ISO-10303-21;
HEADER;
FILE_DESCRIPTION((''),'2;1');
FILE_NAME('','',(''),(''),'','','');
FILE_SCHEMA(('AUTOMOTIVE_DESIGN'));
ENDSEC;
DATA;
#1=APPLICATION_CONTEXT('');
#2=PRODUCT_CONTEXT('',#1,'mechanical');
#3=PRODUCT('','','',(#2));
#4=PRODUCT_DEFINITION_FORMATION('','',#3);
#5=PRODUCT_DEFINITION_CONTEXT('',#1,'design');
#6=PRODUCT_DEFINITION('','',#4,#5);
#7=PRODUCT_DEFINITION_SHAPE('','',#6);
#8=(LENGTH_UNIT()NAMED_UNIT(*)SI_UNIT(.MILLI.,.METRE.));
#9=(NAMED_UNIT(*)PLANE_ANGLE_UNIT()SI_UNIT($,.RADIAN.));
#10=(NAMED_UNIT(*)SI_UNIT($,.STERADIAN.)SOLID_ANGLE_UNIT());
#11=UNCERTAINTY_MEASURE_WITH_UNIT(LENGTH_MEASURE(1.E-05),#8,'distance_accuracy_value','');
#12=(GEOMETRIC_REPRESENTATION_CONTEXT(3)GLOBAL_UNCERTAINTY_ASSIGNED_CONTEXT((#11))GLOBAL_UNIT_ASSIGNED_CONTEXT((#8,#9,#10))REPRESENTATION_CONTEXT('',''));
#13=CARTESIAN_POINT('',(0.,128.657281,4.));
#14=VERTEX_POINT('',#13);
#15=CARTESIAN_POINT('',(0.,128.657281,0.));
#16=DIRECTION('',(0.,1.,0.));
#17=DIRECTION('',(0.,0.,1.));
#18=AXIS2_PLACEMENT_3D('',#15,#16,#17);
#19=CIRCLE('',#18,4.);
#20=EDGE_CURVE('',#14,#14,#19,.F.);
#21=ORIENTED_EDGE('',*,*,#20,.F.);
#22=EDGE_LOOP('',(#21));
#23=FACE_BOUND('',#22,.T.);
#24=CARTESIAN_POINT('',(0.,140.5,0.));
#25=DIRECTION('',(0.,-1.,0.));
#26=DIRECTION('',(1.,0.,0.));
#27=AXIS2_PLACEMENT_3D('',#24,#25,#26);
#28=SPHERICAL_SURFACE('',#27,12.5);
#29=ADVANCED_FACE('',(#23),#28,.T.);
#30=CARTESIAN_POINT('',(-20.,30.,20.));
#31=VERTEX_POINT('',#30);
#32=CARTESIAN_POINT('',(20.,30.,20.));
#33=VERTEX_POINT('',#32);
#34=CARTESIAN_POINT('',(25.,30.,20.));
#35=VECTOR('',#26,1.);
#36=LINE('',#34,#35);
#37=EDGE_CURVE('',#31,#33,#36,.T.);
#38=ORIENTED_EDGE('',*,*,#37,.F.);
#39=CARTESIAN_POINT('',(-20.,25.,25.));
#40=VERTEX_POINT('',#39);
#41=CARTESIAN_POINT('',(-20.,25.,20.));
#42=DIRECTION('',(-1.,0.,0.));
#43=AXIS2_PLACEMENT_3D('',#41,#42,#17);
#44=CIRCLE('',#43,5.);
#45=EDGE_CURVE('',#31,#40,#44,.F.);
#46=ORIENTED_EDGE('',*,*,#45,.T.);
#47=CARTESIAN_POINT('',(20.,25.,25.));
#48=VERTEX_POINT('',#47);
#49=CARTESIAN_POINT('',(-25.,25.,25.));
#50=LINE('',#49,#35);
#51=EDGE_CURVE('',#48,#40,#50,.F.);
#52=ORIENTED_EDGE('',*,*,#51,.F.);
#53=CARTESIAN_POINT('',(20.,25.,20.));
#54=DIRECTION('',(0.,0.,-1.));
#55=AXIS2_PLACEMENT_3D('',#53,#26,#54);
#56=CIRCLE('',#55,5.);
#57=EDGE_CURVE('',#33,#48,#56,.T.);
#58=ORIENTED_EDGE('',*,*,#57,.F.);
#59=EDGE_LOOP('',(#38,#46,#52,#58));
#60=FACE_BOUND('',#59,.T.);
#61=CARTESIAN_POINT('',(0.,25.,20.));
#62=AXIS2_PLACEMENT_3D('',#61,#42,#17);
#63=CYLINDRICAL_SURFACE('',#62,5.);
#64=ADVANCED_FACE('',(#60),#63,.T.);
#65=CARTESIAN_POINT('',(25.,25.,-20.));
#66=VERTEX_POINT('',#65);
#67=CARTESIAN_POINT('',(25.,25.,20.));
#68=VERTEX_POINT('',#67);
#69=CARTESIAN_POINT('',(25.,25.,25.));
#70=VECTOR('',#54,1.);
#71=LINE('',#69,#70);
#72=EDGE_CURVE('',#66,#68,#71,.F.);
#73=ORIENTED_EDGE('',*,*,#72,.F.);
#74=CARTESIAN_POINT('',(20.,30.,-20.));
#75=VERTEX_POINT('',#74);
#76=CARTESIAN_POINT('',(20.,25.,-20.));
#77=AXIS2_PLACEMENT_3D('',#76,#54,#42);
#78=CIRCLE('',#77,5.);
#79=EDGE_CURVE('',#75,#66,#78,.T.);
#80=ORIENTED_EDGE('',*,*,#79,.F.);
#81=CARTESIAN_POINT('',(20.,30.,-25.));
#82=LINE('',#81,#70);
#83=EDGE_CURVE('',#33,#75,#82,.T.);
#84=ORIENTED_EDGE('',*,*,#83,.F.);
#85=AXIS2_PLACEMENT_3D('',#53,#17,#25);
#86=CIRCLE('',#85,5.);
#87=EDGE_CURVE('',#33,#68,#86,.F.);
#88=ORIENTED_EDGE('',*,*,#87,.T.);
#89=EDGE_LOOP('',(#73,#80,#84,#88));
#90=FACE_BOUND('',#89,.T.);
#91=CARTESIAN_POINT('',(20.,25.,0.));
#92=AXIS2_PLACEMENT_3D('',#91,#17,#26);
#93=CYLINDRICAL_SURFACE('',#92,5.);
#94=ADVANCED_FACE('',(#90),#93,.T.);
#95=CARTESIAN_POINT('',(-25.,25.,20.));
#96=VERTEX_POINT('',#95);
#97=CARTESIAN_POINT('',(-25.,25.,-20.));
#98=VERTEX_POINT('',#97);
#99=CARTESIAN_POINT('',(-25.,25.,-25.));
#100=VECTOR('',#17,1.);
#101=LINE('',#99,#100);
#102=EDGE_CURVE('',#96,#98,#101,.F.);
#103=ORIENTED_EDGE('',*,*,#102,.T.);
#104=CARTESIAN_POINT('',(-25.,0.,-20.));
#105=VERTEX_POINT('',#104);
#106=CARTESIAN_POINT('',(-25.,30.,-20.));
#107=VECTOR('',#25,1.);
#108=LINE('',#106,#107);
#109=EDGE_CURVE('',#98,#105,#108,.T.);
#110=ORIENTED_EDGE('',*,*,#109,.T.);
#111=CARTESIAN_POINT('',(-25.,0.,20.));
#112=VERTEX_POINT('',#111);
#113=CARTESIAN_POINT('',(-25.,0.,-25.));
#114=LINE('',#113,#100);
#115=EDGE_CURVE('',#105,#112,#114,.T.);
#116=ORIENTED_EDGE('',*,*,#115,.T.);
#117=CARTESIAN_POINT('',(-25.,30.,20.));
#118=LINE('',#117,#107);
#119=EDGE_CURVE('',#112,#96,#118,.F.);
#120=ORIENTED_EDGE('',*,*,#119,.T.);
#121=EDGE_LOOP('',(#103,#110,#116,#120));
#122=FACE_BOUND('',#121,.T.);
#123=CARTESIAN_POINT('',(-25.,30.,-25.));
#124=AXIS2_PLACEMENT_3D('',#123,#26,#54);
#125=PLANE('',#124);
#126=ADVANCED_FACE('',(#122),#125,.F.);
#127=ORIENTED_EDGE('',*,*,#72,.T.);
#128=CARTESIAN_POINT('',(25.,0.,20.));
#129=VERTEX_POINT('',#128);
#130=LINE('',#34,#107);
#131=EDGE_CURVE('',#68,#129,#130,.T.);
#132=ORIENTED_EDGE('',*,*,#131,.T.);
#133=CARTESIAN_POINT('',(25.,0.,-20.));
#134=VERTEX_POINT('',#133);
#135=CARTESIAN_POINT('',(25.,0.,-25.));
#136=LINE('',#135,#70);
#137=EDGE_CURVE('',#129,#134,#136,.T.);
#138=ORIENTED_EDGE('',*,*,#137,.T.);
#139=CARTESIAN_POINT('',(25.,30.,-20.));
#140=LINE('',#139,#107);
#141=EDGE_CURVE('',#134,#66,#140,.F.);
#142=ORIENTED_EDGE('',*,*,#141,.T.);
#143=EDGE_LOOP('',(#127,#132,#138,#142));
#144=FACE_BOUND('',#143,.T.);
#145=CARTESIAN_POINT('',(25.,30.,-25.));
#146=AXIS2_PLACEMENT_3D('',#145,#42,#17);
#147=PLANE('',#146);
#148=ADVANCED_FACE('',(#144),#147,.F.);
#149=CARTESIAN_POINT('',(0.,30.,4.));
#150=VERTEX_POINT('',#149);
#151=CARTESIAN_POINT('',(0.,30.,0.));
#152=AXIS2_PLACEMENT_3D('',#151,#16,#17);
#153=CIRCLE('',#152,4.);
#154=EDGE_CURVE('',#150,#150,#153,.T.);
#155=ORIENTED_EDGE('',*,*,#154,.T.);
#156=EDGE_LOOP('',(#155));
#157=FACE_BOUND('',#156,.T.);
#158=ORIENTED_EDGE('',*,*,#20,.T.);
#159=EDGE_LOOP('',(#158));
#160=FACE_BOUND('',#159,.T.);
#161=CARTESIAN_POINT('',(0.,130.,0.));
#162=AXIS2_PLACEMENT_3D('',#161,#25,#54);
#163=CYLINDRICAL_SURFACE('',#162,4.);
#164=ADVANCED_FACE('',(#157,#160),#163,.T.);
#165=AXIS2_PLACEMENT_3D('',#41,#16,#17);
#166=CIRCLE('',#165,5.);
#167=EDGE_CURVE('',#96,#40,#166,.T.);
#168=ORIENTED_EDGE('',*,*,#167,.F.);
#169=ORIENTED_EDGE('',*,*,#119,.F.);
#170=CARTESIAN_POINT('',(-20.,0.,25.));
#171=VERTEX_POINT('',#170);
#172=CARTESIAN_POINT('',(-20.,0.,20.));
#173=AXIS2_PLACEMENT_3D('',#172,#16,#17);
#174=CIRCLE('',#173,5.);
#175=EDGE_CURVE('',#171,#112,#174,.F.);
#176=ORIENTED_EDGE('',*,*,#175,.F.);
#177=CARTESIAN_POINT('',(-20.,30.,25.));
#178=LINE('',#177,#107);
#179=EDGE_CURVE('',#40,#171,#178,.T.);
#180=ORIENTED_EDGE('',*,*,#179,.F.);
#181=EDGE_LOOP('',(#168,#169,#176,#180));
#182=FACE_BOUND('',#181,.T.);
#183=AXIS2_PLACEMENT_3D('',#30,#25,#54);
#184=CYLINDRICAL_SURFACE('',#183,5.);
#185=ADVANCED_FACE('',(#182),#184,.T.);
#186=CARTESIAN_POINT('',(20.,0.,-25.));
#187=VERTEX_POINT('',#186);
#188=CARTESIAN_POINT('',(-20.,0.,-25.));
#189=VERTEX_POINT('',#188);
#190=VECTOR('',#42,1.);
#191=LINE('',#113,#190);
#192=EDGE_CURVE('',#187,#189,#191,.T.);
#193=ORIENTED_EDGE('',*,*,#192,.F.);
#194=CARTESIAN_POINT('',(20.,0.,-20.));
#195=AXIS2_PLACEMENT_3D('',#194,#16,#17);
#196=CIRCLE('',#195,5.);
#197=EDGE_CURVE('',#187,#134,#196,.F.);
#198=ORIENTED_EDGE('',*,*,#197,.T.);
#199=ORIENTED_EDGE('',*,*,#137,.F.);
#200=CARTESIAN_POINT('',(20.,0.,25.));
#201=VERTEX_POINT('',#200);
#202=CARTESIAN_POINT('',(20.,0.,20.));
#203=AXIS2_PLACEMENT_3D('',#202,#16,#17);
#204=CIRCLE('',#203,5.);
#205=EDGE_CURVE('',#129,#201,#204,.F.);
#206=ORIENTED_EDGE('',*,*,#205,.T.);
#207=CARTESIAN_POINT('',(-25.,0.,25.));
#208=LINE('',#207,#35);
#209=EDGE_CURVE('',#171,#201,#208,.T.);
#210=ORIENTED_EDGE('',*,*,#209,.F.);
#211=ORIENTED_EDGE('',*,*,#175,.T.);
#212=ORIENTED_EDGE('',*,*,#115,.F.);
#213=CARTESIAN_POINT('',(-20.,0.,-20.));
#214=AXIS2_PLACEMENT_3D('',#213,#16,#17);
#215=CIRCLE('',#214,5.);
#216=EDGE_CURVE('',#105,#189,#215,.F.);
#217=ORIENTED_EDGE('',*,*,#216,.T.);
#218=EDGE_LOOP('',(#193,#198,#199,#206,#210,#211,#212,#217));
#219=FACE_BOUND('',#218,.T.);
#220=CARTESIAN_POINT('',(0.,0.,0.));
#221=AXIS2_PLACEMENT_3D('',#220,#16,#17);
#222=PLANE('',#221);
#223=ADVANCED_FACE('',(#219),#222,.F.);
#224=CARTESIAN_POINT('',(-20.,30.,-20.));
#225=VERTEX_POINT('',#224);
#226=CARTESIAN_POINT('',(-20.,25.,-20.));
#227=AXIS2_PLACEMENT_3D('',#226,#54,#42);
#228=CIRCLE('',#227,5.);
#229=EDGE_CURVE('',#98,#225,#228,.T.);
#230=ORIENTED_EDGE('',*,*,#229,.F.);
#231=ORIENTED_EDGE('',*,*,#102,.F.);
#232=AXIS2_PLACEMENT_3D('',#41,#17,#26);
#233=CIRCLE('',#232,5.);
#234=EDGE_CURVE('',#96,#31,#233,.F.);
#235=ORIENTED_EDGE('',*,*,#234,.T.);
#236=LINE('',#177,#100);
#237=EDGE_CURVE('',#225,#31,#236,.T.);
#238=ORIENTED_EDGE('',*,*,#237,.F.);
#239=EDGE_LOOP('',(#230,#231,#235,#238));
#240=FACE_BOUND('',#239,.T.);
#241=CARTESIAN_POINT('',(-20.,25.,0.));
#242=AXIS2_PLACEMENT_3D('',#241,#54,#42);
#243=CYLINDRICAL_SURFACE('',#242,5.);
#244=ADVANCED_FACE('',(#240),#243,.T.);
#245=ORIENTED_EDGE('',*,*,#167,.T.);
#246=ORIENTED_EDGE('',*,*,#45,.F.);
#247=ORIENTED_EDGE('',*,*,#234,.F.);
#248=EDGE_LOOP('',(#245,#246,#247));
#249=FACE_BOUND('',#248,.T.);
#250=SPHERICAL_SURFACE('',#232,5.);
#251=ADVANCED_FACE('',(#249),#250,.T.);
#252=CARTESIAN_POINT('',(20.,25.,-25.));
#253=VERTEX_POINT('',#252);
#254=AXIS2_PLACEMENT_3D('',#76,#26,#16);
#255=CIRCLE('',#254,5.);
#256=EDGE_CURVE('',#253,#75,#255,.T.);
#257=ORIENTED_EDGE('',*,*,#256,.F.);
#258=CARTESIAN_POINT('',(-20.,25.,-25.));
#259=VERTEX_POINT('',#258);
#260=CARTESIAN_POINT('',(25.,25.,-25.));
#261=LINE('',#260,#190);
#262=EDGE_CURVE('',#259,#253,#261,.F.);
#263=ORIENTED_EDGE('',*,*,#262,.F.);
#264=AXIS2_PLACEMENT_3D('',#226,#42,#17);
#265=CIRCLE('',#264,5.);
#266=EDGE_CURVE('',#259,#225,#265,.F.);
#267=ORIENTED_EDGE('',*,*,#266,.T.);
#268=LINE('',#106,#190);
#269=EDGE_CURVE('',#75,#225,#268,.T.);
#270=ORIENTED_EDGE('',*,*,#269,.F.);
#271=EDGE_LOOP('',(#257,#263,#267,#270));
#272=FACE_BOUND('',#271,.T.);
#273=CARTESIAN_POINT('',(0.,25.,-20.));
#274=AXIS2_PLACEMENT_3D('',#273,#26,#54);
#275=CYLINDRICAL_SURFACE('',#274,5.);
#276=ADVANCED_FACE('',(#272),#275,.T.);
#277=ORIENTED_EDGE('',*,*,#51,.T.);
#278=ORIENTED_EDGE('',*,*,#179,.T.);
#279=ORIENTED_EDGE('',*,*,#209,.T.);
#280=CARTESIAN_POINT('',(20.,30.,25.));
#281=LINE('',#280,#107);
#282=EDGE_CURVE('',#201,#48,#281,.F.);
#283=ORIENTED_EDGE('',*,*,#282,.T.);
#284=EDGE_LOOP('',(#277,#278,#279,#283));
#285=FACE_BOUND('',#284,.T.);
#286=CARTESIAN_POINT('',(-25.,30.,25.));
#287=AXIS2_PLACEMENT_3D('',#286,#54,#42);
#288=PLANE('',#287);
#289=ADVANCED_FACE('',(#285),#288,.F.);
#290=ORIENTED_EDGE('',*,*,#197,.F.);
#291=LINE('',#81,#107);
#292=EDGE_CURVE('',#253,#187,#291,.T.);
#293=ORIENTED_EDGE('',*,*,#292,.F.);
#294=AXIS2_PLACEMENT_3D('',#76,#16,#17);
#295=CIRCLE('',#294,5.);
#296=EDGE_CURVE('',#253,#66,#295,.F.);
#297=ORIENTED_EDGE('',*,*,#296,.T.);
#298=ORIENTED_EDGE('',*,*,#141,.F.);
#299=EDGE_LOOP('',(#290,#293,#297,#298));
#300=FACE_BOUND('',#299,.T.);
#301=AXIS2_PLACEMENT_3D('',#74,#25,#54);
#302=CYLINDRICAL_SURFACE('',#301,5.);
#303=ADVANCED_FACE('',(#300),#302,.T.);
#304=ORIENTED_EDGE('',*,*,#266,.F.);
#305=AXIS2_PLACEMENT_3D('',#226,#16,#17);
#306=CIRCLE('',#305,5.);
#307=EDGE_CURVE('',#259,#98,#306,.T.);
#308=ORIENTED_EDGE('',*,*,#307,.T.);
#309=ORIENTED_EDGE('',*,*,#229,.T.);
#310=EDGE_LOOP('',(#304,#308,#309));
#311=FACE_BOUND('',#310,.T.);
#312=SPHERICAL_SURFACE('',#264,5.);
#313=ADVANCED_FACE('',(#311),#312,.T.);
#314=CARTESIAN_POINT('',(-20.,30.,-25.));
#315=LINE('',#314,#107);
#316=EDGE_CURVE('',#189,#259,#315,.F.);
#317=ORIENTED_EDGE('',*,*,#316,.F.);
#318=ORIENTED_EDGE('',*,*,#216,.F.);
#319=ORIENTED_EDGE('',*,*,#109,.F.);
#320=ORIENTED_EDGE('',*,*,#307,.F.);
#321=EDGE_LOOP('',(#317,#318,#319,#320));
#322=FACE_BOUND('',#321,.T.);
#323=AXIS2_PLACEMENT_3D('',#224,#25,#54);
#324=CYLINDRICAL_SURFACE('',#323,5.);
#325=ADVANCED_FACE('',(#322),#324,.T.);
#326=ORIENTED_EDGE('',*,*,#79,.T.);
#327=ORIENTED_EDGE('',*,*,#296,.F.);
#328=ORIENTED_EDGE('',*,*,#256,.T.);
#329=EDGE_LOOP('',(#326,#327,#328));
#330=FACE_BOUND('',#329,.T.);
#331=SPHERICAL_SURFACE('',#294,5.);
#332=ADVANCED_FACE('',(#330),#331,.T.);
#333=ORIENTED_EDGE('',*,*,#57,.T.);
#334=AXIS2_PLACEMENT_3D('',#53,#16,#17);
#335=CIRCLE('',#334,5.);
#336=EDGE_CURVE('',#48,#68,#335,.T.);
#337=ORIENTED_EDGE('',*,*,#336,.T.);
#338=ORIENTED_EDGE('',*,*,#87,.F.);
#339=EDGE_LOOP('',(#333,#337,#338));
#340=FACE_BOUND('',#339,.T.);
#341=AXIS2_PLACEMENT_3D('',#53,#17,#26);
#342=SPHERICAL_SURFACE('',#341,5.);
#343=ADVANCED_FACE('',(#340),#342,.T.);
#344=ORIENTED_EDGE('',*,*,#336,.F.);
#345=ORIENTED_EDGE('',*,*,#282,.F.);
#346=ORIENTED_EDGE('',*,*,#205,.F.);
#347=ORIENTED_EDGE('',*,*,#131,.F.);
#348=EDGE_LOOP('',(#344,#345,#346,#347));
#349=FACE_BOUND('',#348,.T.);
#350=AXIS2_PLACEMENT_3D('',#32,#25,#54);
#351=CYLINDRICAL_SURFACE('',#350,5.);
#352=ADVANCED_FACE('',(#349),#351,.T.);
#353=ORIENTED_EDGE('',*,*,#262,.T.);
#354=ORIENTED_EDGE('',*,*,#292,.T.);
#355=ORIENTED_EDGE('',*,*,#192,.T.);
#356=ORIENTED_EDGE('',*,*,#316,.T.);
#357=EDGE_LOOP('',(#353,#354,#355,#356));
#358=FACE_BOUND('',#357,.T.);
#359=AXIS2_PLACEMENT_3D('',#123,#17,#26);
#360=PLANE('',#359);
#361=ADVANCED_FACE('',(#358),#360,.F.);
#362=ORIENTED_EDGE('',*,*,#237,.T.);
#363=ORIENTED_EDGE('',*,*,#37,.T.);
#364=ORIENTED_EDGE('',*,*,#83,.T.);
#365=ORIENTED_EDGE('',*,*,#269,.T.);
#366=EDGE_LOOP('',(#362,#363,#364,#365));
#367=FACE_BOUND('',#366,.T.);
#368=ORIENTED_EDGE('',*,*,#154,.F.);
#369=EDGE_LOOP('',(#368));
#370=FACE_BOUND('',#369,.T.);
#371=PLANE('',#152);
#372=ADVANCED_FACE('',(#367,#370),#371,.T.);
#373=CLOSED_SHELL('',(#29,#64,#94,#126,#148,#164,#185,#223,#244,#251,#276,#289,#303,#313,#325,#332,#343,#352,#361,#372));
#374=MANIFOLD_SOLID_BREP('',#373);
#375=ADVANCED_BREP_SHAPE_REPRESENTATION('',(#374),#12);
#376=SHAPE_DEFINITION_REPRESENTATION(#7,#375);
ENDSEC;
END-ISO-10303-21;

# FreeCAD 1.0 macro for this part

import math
import FreeCAD as App
import Part
import Sketcher

V = App.Vector
Q = App.Units.Quantity


def edges_at(feature, points):
    """Names of the edges that pass closest to the given points."""
    edges = feature.Shape.Edges
    near = lambda p: min(range(len(edges)), key=lambda i: edges[i].distToShape(Part.Vertex(*p))[0])
    return sorted({f"Edge{near(p) + 1}" for p in points})


def add_polygon(sketch, points):
    """Adds a closed chain of lines whose ends are joined by coincident constraints."""
    first, n = sketch.GeometryCount, len(points)
    for a, b in zip(points, points[1:] + points[:1]):
        sketch.addGeometry(Part.LineSegment(App.Vector(*a, 0), App.Vector(*b, 0)), False)
    for i in range(n):
        sketch.addConstraint(Sketcher.Constraint("Coincident", first + i, 2, first + (i + 1) % n, 1))

doc = App.newDocument("Part")
params = doc.addObject("Spreadsheet::Sheet", "Params")
for row, (alias, value) in enumerate([
    ("sketch1_width", "50 mm"),
    ("pad1_length", "30 mm"),
    ("fillet_radius", "5 mm"),
    ("sketch2_diameter", "8 mm"),
    ("pad2_length", "100 mm"),
    ("sketch3_radius", "12.5 mm"),
    ("revolution_angle", "360 deg"),
], start=1):
    params.set(f"A{row}", alias)
    params.set(f"B{row}", "=" + value)
    params.setAlias(f"B{row}", alias)

body = doc.addObject("PartDesign::Body", "Body")

sketch1 = body.newObject("Sketcher::SketchObject", "Sketch")
sketch1.AttachmentSupport = (doc.getObject("XZ_Plane"), [""])
sketch1.MapMode = "FlatFace"
add_polygon(sketch1, [(-25, -25), (-25, 25), (25, 25), (25, -25)])
sketch1.addConstraint(Sketcher.Constraint("Vertical", 0))
sketch1.addConstraint(Sketcher.Constraint("Horizontal", 1))
sketch1.addConstraint(Sketcher.Constraint("Vertical", 2))
sketch1.addConstraint(Sketcher.Constraint("Horizontal", 3))
sketch1.addConstraint(Sketcher.Constraint("Symmetric", 0, 2, 2, 2, -1, 1))
sketch1.addConstraint(Sketcher.Constraint("Equal", 3, 0))
sketch1.addConstraint(Sketcher.Constraint("DistanceX", 1, 1, 1, 2, Q("50 mm")))
sketch1.setExpression("Constraints[10]", "Params.sketch1_width")
pad1 = body.newObject("PartDesign::Pad", "Pad")
pad1.Profile = sketch1
pad1.setExpression("Length", "Params.pad1_length")
pad1.Reversed = True
doc.recompute()

fillet = body.newObject("PartDesign::Fillet", "Fillet")
fillet.Base = (pad1, edges_at(pad1, [
    (25, 30, 0),
    (0, 30, -25),
    (-25, 30, 0),
    (-25, 15, -25),
    (25, 15, -25),
    (25, 15, 25),
    (-25, 15, 25),
    (0, 30, 25),
]))
fillet.setExpression("Radius", "Params.fillet_radius")

sketch2 = body.newObject("Sketcher::SketchObject", "Sketch001")
sketch2.AttachmentSupport = (doc.getObject("XZ_Plane"), [""])
sketch2.MapMode = "FlatFace"
sketch2.AttachmentOffset = App.Placement(V(0, 0, -30), App.Rotation())
sketch2.addGeometry(Part.Circle(V(0, 0, 0), V(0, 0, 1), 4), False)
sketch2.addConstraint(Sketcher.Constraint("Coincident", 0, 3, -1, 1))
sketch2.addConstraint(Sketcher.Constraint("Diameter", 0, Q("8 mm")))
sketch2.setExpression("Constraints[1]", "Params.sketch2_diameter")
pad2 = body.newObject("PartDesign::Pad", "Pad001")
pad2.Profile = sketch2
pad2.setExpression("Length", "Params.pad2_length")
pad2.Reversed = True

sketch3 = body.newObject("Sketcher::SketchObject", "Sketch002")
sketch3.AttachmentSupport = (doc.getObject("XY_Plane"), [""])
sketch3.MapMode = "FlatFace"
sketch3.addGeometry(Part.ArcOfCircle(Part.Circle(V(0, 140, 0), V(0, 0, 1), 12), math.radians(-90), math.radians(90)), False)
sketch3.addGeometry(Part.LineSegment(V(0, 153, 0), V(0, 128, 0)), False)
sketch3.addConstraint(Sketcher.Constraint("Coincident", 0, 1, 1, 2))
sketch3.addConstraint(Sketcher.Constraint("Coincident", 1, 1, 0, 2))
sketch3.addConstraint(Sketcher.Constraint("Vertical", 1))
sketch3.addConstraint(Sketcher.Constraint("PointOnObject", 0, 3, -2))
sketch3.addConstraint(Sketcher.Constraint("PointOnObject", 0, 1, -2))
sketch3.addConstraint(Sketcher.Constraint("Radius", 0, Q("12.5 mm")))
sketch3.addConstraint(Sketcher.Constraint("DistanceY", -1, 1, 0, 1, Q("128 mm")))
sketch3.setExpression("Constraints[5]", "Params.sketch3_radius")
revolution = body.newObject("PartDesign::Revolution", "Revolution")
revolution.Profile = sketch3
revolution.ReferenceAxis = (sketch3, ["V_Axis"])
revolution.setExpression("Angle", "Params.revolution_angle")

doc.recompute()
